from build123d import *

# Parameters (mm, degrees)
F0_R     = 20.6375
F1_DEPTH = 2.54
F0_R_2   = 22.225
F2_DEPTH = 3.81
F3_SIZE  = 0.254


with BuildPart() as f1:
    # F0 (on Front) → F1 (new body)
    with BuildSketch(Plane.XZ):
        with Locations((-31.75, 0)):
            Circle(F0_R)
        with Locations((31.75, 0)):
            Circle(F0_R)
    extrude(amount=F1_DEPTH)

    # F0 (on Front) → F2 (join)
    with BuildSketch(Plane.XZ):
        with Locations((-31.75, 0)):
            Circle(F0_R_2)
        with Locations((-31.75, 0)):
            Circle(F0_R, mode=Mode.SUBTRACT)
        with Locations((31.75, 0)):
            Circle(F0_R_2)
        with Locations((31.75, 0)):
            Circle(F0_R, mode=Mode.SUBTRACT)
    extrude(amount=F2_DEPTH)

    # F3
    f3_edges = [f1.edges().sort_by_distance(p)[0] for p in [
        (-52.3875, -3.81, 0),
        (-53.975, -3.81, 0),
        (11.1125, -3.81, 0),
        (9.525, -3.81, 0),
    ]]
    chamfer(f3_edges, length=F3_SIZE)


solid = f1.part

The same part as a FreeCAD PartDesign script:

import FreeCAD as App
import Part
import Sketcher
from FreeCAD import Vector
Q = App.Units.Quantity


def edges_at(feature, points):
    """Names of the edges that pass closest to the given points."""
    edges = feature.Shape.Edges
    near = lambda p: min(range(len(edges)), key=lambda i: edges[i].distToShape(Part.Vertex(*p))[0])
    return sorted({f"Edge{near(p) + 1}" for p in points})

doc = App.newDocument("Part")
params = doc.addObject("Spreadsheet::Sheet", "Params")
for row, (alias, value) in enumerate([
    ("sketch1_diameter", "1.625 in"),
    ("pad1_length", "0.1 in"),
    ("sketch2_diameter", "1.75 in"),
    ("sketch2_diameter2", "1.625 in"),
    ("pad2_length", "0.15 in"),
    ("chamfer_size", "0.01 in"),
], start=1):
    params.set(f"A{row}", alias)
    params.set(f"B{row}", "=" + value)
    params.setAlias(f"B{row}", alias)

body = doc.addObject("PartDesign::Body", "Body")
body.AllowCompound = True

sketch1 = body.newObject("Sketcher::SketchObject", "Sketch")
sketch1.AttachmentSupport = (doc.getObject("XZ_Plane"), [""])
sketch1.MapMode = "FlatFace"
sketch1.addGeometry([
    Part.Circle(Vector(-31.75, 0, 0), Vector(0, 0, 1), 20.6375),
    Part.Circle(Vector(31.75, 0, 0), Vector(0, 0, 1), 20.6375),
], False)
sketch1.addConstraint([
    Sketcher.Constraint("Equal", 0, 1),
    Sketcher.Constraint("Symmetric", 0, 3, 1, 3, -1, 1),
    Sketcher.Constraint("PointOnObject", 0, 3, -1),
    Sketcher.Constraint("Diameter", 0, Q("1.625 in")),
    Sketcher.Constraint("DistanceX", 0, 3, 1, 3, Q("2.5 in")),
])
sketch1.setExpression("Constraints[3]", "Params.sketch1_diameter")
pad1 = body.newObject("PartDesign::Pad", "Pad")
pad1.Profile = sketch1
pad1.setExpression("Length", "Params.pad1_length")

sketch2 = body.newObject("Sketcher::SketchObject", "Sketch001")
sketch2.AttachmentSupport = (doc.getObject("XZ_Plane"), [""])
sketch2.MapMode = "FlatFace"
sketch2.addGeometry([
    Part.Circle(Vector(-31.75, 0, 0), Vector(0, 0, 1), 22.225),
    Part.Circle(Vector(-31.75, 0, 0), Vector(0, 0, 1), 20.6375),
    Part.Circle(Vector(31.75, 0, 0), Vector(0, 0, 1), 22.225),
    Part.Circle(Vector(31.75, 0, 0), Vector(0, 0, 1), 20.6375),
], False)
sketch2.addConstraint([
    Sketcher.Constraint("Coincident", 1, 3, 0, 3),
    Sketcher.Constraint("Coincident", 3, 3, 2, 3),
    Sketcher.Constraint("Equal", 0, 2),
    Sketcher.Constraint("Equal", 1, 3),
    Sketcher.Constraint("Symmetric", 0, 3, 2, 3, -1, 1),
    Sketcher.Constraint("PointOnObject", 0, 3, -1),
    Sketcher.Constraint("Diameter", 0, Q("1.75 in")),
    Sketcher.Constraint("Diameter", 1, Q("1.625 in")),
    Sketcher.Constraint("DistanceX", 0, 3, 2, 3, Q("2.5 in")),
])
sketch2.setExpression("Constraints[6]", "Params.sketch2_diameter")
sketch2.setExpression("Constraints[7]", "Params.sketch2_diameter2")
pad2 = body.newObject("PartDesign::Pad", "Pad001")
pad2.Profile = sketch2
pad2.setExpression("Length", "Params.pad2_length")
doc.recompute()

chamfer = body.newObject("PartDesign::Chamfer", "Chamfer")
chamfer.Base = (pad2, edges_at(pad2, [
    (-52.388, -3.81, 0),
    (-53.975, -3.81, 0),
    (11.113, -3.81, 0),
    (9.525, -3.81, 0),
]))
chamfer.setExpression("Size", "Params.chamfer_size")

doc.recompute()
